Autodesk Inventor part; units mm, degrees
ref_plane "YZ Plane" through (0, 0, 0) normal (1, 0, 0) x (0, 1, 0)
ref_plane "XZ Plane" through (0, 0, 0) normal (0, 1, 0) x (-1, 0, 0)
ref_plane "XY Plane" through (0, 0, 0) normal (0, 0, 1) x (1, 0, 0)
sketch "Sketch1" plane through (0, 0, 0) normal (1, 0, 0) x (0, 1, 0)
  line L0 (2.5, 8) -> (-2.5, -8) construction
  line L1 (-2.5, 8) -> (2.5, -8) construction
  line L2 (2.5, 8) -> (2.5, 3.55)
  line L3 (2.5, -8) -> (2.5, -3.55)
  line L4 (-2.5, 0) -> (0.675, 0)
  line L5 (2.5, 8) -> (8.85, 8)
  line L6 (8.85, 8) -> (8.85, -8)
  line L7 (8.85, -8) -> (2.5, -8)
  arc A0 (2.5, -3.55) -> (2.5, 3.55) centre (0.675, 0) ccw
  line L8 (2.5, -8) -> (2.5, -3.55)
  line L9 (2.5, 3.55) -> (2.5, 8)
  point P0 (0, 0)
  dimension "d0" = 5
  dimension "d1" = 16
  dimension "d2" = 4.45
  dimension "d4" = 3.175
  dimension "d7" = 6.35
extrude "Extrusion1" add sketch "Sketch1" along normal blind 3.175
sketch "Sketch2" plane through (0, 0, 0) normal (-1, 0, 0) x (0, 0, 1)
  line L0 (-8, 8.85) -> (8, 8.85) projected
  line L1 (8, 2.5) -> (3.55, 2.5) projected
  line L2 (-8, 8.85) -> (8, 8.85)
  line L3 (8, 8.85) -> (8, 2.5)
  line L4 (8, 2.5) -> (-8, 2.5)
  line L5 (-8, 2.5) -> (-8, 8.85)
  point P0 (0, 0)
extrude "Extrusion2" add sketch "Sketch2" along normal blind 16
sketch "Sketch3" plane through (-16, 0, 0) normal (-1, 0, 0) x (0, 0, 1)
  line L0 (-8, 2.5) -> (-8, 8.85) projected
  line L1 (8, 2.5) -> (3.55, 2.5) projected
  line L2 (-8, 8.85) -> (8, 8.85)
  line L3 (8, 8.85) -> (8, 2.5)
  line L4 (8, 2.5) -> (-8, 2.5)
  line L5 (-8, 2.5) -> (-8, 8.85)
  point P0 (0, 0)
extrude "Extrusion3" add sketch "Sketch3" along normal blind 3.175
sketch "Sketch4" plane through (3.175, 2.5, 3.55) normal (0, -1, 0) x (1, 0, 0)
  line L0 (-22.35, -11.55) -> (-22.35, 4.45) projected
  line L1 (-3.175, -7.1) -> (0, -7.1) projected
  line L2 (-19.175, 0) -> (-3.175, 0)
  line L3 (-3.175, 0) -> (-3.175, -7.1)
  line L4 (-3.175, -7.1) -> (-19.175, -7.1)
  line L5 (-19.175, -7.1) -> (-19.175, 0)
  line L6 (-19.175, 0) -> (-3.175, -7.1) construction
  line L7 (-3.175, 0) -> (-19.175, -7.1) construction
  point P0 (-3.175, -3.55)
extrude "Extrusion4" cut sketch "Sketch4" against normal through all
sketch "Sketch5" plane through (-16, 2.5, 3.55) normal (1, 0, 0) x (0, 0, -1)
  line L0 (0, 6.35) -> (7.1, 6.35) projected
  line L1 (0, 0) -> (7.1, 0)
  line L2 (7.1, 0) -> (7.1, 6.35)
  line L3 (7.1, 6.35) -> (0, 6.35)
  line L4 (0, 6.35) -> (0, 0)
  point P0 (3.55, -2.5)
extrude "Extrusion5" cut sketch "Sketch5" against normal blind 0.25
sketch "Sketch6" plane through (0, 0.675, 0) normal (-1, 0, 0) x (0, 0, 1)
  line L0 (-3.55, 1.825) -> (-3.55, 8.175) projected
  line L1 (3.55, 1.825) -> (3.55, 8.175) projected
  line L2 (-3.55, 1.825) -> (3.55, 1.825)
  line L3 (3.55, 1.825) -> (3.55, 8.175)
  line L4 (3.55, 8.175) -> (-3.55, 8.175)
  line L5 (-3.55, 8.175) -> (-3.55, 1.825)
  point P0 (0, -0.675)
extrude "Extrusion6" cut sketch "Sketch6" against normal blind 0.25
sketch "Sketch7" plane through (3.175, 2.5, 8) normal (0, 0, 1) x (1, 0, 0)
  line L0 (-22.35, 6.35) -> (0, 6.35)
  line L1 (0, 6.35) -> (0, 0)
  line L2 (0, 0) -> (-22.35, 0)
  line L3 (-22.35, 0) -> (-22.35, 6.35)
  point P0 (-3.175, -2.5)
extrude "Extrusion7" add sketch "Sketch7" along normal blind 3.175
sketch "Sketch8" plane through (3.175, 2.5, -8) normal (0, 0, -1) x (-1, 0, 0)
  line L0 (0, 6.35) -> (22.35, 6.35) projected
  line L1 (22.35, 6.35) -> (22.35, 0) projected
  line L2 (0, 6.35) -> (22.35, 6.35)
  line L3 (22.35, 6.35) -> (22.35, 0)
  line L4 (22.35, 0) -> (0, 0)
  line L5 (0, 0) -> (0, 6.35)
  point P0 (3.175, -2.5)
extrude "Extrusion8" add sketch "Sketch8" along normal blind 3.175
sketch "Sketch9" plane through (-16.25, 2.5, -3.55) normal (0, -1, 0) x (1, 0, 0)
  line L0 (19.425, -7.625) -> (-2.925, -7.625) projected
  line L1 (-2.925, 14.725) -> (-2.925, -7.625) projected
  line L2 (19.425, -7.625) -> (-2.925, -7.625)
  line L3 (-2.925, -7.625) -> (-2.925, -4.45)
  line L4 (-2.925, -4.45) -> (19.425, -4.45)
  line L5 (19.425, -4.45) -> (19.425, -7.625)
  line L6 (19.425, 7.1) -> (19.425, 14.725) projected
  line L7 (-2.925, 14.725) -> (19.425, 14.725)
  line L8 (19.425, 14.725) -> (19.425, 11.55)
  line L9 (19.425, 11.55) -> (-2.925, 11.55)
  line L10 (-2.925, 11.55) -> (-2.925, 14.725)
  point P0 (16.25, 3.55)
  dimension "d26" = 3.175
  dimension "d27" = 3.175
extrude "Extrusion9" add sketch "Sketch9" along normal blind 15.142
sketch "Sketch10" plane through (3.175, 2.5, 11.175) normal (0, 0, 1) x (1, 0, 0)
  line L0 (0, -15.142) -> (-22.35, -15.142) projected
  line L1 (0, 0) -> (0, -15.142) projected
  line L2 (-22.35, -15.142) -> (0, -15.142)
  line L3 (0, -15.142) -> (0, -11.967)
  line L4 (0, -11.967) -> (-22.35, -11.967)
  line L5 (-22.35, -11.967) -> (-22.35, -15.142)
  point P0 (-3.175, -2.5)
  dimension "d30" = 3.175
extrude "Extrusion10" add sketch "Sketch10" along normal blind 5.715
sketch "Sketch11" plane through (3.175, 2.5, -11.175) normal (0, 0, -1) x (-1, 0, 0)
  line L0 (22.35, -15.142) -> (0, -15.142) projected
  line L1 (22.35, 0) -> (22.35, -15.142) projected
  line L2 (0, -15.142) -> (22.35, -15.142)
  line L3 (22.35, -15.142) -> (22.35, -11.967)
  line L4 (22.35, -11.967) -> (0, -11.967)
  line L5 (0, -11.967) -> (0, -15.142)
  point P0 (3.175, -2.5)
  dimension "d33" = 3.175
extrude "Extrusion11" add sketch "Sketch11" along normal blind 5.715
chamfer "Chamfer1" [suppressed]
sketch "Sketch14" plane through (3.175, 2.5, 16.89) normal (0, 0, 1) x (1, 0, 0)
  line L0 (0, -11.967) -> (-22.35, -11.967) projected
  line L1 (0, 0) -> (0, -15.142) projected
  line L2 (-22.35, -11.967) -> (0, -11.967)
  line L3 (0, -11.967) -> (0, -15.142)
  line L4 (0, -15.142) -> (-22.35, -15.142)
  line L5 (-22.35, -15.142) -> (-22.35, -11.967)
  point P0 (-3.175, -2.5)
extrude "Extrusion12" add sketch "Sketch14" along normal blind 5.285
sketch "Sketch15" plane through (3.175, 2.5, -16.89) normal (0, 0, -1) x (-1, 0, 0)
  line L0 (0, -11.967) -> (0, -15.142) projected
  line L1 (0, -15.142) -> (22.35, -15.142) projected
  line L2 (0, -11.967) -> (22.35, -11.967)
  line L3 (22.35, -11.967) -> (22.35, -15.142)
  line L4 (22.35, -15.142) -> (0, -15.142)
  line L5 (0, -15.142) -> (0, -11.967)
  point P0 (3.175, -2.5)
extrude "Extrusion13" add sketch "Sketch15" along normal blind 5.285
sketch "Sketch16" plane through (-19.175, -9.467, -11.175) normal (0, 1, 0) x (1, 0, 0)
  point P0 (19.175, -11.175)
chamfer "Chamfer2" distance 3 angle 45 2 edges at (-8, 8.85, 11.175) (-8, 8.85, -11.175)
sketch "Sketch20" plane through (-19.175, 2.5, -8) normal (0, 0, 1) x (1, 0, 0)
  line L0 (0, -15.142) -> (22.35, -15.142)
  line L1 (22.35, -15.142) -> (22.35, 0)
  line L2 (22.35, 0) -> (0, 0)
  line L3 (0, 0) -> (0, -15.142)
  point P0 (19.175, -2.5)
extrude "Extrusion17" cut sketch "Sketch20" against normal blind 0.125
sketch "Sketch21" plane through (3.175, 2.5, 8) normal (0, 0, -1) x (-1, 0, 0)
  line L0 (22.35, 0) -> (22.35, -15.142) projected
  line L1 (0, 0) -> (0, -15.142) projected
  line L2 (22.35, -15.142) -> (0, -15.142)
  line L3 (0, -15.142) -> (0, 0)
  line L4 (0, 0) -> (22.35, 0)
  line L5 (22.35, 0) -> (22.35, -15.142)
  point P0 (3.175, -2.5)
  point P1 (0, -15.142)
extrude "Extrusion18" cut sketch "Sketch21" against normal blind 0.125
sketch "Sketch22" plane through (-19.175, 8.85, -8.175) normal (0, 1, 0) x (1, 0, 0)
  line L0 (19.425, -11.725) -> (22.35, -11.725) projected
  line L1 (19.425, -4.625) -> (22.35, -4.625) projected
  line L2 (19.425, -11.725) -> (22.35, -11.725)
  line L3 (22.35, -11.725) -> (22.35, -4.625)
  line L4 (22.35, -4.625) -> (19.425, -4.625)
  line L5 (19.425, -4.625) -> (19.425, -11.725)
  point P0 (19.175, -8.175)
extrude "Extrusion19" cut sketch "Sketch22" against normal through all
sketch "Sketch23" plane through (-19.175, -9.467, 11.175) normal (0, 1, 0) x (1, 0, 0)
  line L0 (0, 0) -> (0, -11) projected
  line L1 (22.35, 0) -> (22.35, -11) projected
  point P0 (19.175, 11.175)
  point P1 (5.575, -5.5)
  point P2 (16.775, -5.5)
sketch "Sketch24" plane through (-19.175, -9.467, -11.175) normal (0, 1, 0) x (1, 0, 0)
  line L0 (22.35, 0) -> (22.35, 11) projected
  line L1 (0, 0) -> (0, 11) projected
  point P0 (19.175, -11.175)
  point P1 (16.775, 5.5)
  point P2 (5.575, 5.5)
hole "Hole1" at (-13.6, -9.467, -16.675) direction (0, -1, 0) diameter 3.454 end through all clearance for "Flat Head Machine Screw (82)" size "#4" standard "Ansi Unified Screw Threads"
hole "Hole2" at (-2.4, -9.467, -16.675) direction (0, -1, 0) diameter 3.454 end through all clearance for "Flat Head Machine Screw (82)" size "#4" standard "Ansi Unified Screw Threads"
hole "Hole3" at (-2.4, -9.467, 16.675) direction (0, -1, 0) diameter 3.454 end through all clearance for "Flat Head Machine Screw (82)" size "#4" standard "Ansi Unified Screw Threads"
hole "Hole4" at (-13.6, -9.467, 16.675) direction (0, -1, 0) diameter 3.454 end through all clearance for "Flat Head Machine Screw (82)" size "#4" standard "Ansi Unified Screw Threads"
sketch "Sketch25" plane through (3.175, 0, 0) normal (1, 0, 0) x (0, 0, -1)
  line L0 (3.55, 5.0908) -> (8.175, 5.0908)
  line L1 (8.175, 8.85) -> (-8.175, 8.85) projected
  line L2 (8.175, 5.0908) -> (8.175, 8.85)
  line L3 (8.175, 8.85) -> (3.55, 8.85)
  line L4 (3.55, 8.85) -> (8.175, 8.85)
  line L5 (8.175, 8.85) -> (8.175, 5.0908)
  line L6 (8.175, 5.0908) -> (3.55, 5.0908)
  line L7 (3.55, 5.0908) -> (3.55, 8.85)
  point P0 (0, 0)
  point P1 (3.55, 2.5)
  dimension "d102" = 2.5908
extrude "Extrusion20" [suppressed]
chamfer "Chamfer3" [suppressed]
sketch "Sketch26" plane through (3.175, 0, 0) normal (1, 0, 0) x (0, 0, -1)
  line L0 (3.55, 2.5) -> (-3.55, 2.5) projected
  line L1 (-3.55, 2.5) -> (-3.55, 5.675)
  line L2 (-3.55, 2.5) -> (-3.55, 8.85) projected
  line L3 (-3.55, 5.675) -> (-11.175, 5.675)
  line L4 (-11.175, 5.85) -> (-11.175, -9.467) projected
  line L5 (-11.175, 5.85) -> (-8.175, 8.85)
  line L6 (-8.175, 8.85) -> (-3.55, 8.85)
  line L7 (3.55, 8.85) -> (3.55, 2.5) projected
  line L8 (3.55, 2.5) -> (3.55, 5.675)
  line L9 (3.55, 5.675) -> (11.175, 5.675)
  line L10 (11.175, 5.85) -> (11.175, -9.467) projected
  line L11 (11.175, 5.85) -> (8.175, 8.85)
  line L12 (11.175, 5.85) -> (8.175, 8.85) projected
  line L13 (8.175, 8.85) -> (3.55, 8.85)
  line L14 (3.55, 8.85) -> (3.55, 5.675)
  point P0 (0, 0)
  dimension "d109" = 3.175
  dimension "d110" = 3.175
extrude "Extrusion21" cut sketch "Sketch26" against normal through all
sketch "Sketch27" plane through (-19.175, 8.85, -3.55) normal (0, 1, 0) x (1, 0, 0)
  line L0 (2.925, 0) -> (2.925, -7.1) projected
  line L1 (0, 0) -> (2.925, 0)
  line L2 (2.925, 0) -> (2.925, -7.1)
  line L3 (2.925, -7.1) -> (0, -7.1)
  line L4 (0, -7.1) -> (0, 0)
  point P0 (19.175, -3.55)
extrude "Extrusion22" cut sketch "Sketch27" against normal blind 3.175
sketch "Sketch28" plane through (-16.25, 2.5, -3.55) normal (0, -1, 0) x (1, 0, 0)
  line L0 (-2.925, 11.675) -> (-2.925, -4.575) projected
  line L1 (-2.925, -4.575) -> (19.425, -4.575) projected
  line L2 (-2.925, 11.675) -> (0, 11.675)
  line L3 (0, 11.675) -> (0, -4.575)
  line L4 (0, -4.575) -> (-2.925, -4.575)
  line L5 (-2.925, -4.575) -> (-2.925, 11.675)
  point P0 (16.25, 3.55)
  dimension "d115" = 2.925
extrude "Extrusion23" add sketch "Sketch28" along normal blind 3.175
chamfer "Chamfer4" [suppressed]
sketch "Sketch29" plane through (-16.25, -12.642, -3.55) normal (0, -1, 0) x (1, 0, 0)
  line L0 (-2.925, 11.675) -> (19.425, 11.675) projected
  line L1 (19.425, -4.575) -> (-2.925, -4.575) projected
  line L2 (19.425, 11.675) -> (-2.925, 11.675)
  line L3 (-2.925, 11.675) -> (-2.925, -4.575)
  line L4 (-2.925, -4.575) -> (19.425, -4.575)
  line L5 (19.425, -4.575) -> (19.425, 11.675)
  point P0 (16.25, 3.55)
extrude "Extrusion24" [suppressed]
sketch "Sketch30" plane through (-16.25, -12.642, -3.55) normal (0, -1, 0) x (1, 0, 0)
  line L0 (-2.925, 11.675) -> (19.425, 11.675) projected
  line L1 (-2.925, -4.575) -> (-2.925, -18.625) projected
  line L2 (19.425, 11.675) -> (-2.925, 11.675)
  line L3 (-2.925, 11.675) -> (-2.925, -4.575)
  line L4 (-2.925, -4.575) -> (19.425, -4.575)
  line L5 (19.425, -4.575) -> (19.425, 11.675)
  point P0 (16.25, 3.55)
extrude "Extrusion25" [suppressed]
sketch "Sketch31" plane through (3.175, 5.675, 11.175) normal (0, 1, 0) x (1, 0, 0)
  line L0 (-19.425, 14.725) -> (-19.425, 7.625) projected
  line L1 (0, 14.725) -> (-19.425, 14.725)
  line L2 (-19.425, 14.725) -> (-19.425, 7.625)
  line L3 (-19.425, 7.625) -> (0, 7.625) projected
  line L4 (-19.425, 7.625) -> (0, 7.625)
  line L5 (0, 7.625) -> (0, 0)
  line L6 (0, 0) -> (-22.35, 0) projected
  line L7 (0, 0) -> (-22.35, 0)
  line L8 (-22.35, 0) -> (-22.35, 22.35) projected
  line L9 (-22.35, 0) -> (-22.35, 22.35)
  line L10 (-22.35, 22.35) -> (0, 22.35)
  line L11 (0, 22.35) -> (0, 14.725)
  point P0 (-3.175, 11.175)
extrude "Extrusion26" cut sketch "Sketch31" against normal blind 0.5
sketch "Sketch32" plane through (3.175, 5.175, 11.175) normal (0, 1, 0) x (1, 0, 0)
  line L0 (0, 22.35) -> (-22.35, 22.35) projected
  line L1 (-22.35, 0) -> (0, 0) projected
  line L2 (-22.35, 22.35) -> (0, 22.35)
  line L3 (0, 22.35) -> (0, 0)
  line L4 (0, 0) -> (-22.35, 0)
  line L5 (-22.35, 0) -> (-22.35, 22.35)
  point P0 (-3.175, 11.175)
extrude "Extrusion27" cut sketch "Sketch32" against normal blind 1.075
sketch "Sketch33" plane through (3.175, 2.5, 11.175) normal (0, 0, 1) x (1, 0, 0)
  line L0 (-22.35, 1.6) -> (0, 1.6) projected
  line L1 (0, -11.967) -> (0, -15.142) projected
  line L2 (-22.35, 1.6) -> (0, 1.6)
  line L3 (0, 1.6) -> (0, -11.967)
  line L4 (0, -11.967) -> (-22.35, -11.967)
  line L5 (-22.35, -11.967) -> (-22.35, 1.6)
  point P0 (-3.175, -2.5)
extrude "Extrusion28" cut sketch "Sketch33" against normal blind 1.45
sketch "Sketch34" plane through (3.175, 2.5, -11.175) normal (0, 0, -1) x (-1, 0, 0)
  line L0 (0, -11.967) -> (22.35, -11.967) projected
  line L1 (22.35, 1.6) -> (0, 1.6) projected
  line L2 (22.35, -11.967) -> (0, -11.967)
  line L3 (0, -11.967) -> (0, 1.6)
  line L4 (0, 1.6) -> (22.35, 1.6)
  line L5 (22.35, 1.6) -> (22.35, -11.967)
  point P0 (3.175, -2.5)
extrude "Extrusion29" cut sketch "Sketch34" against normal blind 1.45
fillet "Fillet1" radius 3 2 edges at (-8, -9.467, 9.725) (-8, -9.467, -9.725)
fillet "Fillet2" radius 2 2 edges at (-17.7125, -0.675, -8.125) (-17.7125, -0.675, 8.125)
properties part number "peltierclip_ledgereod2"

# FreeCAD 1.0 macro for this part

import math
import FreeCAD as App
import Part
import Sketcher

V = App.Vector


def edges_at(feature, points):
    """Names of the edges that pass closest to the given points."""
    edges = feature.Shape.Edges
    near = lambda p: min(range(len(edges)), key=lambda i: edges[i].distToShape(Part.Vertex(*p))[0])
    return sorted({f"Edge{near(p) + 1}" for p in points})

doc = App.newDocument("Part")
body = doc.addObject("PartDesign::Body", "Body")

# Sketch on YZ plane
sketch1 = body.newObject("Sketcher::SketchObject", "Sketch")
sketch1.AttachmentSupport = (doc.getObject("YZ_Plane"), [""])
sketch1.MapMode = "FlatFace"
sketch1.addGeometry([
    Part.LineSegment(V(8.8, 8, 0), V(2.5, 8, 0)),  # 0
    Part.LineSegment(V(2.5, 8, 0), V(2.5, 3.5, 0)),  # 1
    Part.ArcOfCircle(Part.Circle(V(0.7, 0, 0), V(0, 0, 1), 4), math.radians(-63), math.radians(63)),  # 2
    Part.LineSegment(V(2.5, -3.5, 0), V(2.5, -8, 0)),  # 3
    Part.LineSegment(V(2.5, -8, 0), V(8.8, -8, 0)),  # 4
    Part.LineSegment(V(8.8, -8, 0), V(8.8, 8, 0)),  # 5
], False)
sketch1.addConstraint([
    Sketcher.Constraint("Coincident", 0, 2, 1, 1),
    Sketcher.Constraint("Coincident", 1, 2, 2, 2),
    Sketcher.Constraint("Coincident", 2, 1, 3, 1),
    Sketcher.Constraint("Coincident", 3, 2, 4, 1),
    Sketcher.Constraint("Coincident", 4, 2, 5, 1),
    Sketcher.Constraint("Coincident", 5, 2, 0, 1),
    Sketcher.Constraint("Horizontal", 0),
    Sketcher.Constraint("Vertical", 1),
    Sketcher.Constraint("Vertical", 3),
    Sketcher.Constraint("Horizontal", 4),
    Sketcher.Constraint("Vertical", 5),
    Sketcher.Constraint("Symmetric", 1, 2, 2, 1, -1),
    Sketcher.Constraint("Equal", 1, 3),
    Sketcher.Constraint("DistanceY", 5, 1, 5, 2, 16.0),
    Sketcher.Constraint("DistanceX", 0, 2, 0, 1, 6.35),
    Sketcher.Constraint("DistanceY", 1, 2, 1, 1, 4.45),
    Sketcher.Constraint("DistanceX", -1, 1, 0, 2, 2.5),
    Sketcher.Constraint("Radius", 2, 3.9916),
])
pad1 = body.newObject("PartDesign::Pad", "Pad")
pad1.Profile = sketch1
pad1.Length = 3.175

# Sketch on YZ plane
sketch2 = body.newObject("Sketcher::SketchObject", "Sketch001")
sketch2.AttachmentSupport = (doc.getObject("YZ_Plane"), [""])
sketch2.MapMode = "FlatFace"
sketch2.addGeometry([
    Part.LineSegment(V(9, 8, 0), V(9, -8, 0)),
    Part.LineSegment(V(9, -8, 0), V(2, -8, 0)),
    Part.LineSegment(V(2, -8, 0), V(2, 8, 0)),
    Part.LineSegment(V(2, 8, 0), V(9, 8, 0)),
], False)
sketch2.addConstraint([
    Sketcher.Constraint("Coincident", 0, 2, 1, 1),
    Sketcher.Constraint("Coincident", 1, 2, 2, 1),
    Sketcher.Constraint("Coincident", 2, 2, 3, 1),
    Sketcher.Constraint("Coincident", 3, 2, 0, 1),
    Sketcher.Constraint("Vertical", 0),
    Sketcher.Constraint("Horizontal", 1),
    Sketcher.Constraint("Vertical", 2),
    Sketcher.Constraint("Horizontal", 3),
    Sketcher.Constraint("DistanceY", 0, 2, 0, 1, 16.0),
    Sketcher.Constraint("DistanceY", 0, 2, -1, 1, 8.0),
    Sketcher.Constraint("DistanceX", 1, 2, 1, 1, 6.35),
    Sketcher.Constraint("DistanceX", -1, 1, 1, 2, 2.5),
])
pad2 = body.newObject("PartDesign::Pad", "Pad001")
pad2.Profile = sketch2
pad2.Length = 16
pad2.Reversed = True

# Sketch on YZ plane
sketch3 = body.newObject("Sketcher::SketchObject", "Sketch002")
sketch3.AttachmentSupport = (doc.getObject("YZ_Plane"), [""])
sketch3.MapMode = "FlatFace"
sketch3.AttachmentOffset = App.Placement(V(0, 0, -16), App.Rotation())
sketch3.addGeometry([
    Part.LineSegment(V(9, -8, 0), V(2, -8, 0)),
    Part.LineSegment(V(2, -8, 0), V(2, 8, 0)),
    Part.LineSegment(V(2, 8, 0), V(9, 8, 0)),
    Part.LineSegment(V(9, 8, 0), V(9, -8, 0)),
], False)
sketch3.addConstraint([
    Sketcher.Constraint("Coincident", 0, 2, 1, 1),
    Sketcher.Constraint("Coincident", 1, 2, 2, 1),
    Sketcher.Constraint("Coincident", 2, 2, 3, 1),
    Sketcher.Constraint("Coincident", 3, 2, 0, 1),
    Sketcher.Constraint("Horizontal", 0),
    Sketcher.Constraint("Vertical", 1),
    Sketcher.Constraint("Horizontal", 2),
    Sketcher.Constraint("Vertical", 3),
    Sketcher.Constraint("DistanceY", 1, 1, 1, 2, 16.0),
    Sketcher.Constraint("DistanceY", 0, 2, -1, 1, 8.0),
    Sketcher.Constraint("DistanceX", 0, 2, 0, 1, 6.35),
    Sketcher.Constraint("DistanceX", -1, 1, 0, 2, 2.5),
])
pad3 = body.newObject("PartDesign::Pad", "Pad002")
pad3.Profile = sketch3
pad3.Length = 3.175
pad3.Reversed = True

# Sketch on XZ plane
sketch4 = body.newObject("Sketcher::SketchObject", "Sketch003")
sketch4.AttachmentSupport = (doc.getObject("XZ_Plane"), [""])
sketch4.MapMode = "FlatFace"
sketch4.AttachmentOffset = App.Placement(V(0, 0, -2.5), App.Rotation())
sketch4.addGeometry([
    Part.LineSegment(V(0, 4, 0), V(-16, 4, 0)),
    Part.LineSegment(V(-16, 4, 0), V(-16, -4, 0)),
    Part.LineSegment(V(-16, -4, 0), V(0, -4, 0)),
    Part.LineSegment(V(0, -4, 0), V(0, 4, 0)),
], False)
sketch4.addConstraint([
    Sketcher.Constraint("Coincident", 0, 2, 1, 1),
    Sketcher.Constraint("Coincident", 1, 2, 2, 1),
    Sketcher.Constraint("Coincident", 2, 2, 3, 1),
    Sketcher.Constraint("Coincident", 3, 2, 0, 1),
    Sketcher.Constraint("Horizontal", 0),
    Sketcher.Constraint("Vertical", 1),
    Sketcher.Constraint("Horizontal", 2),
    Sketcher.Constraint("Vertical", 3),
    Sketcher.Constraint("Symmetric", 2, 2, 3, 2, -1, 1),
    Sketcher.Constraint("DistanceX", 0, 2, 0, 1, 16.0),
    Sketcher.Constraint("DistanceY", 1, 2, 1, 1, 7.1),
])
pocket1 = body.newObject("PartDesign::Pocket", "Pocket")
pocket1.Profile = sketch4
pocket1.Type = "ThroughAll"

# Sketch on YZ plane
sketch5 = body.newObject("Sketcher::SketchObject", "Sketch004")
sketch5.AttachmentSupport = (doc.getObject("YZ_Plane"), [""])
sketch5.MapMode = "FlatFace"
sketch5.AttachmentOffset = App.Placement(V(0, 0, -16), App.Rotation())
sketch5.addGeometry([
    Part.LineSegment(V(9, -4, 0), V(9, 4, 0)),
    Part.LineSegment(V(9, 4, 0), V(2, 4, 0)),
    Part.LineSegment(V(2, 4, 0), V(2, -4, 0)),
    Part.LineSegment(V(2, -4, 0), V(9, -4, 0)),
], False)
sketch5.addConstraint([
    Sketcher.Constraint("Coincident", 0, 2, 1, 1),
    Sketcher.Constraint("Coincident", 1, 2, 2, 1),
    Sketcher.Constraint("Coincident", 2, 2, 3, 1),
    Sketcher.Constraint("Coincident", 3, 2, 0, 1),
    Sketcher.Constraint("Vertical", 0),
    Sketcher.Constraint("Horizontal", 1),
    Sketcher.Constraint("Vertical", 2),
    Sketcher.Constraint("Horizontal", 3),
    Sketcher.Constraint("DistanceY", 0, 1, 0, 2, 7.1),
    Sketcher.Constraint("DistanceX", 1, 2, 1, 1, 6.35),
    Sketcher.Constraint("DistanceX", -1, 1, 1, 2, 2.5),
    Sketcher.Constraint("DistanceY", -1, 1, 0, 2, 3.55),
])
pocket2 = body.newObject("PartDesign::Pocket", "Pocket001")
pocket2.Profile = sketch5
pocket2.Length = 0.25

# Sketch on YZ plane
sketch6 = body.newObject("Sketcher::SketchObject", "Sketch005")
sketch6.AttachmentSupport = (doc.getObject("YZ_Plane"), [""])
sketch6.MapMode = "FlatFace"
sketch6.addGeometry([
    Part.LineSegment(V(9, -4, 0), V(2, -4, 0)),
    Part.LineSegment(V(2, -4, 0), V(2, 4, 0)),
    Part.LineSegment(V(2, 4, 0), V(9, 4, 0)),
    Part.LineSegment(V(9, 4, 0), V(9, -4, 0)),
], False)
sketch6.addConstraint([
    Sketcher.Constraint("Coincident", 0, 2, 1, 1),
    Sketcher.Constraint("Coincident", 1, 2, 2, 1),
    Sketcher.Constraint("Coincident", 2, 2, 3, 1),
    Sketcher.Constraint("Coincident", 3, 2, 0, 1),
    Sketcher.Constraint("Horizontal", 0),
    Sketcher.Constraint("Vertical", 1),
    Sketcher.Constraint("Horizontal", 2),
    Sketcher.Constraint("Vertical", 3),
    Sketcher.Constraint("DistanceY", 1, 1, 1, 2, 7.1),
    Sketcher.Constraint("DistanceX", 0, 2, 0, 1, 6.35),
    Sketcher.Constraint("DistanceX", -1, 1, 0, 2, 2.5),
    Sketcher.Constraint("DistanceY", 0, 2, -1, 1, 3.55),
])
pocket3 = body.newObject("PartDesign::Pocket", "Pocket002")
pocket3.Profile = sketch6
pocket3.Length = 0.25
pocket3.Reversed = True

# Sketch on XY plane
sketch7 = body.newObject("Sketcher::SketchObject", "Sketch006")
sketch7.AttachmentSupport = (doc.getObject("XY_Plane"), [""])
sketch7.MapMode = "FlatFace"
sketch7.AttachmentOffset = App.Placement(V(0, 0, 8), App.Rotation())
sketch7.addGeometry([
    Part.LineSegment(V(3, 9, 0), V(-19, 9, 0)),
    Part.LineSegment(V(-19, 9, 0), V(-19, 2, 0)),
    Part.LineSegment(V(-19, 2, 0), V(3, 2, 0)),
    Part.LineSegment(V(3, 2, 0), V(3, 9, 0)),
], False)
sketch7.addConstraint([
    Sketcher.Constraint("Coincident", 0, 2, 1, 1),
    Sketcher.Constraint("Coincident", 1, 2, 2, 1),
    Sketcher.Constraint("Coincident", 2, 2, 3, 1),
    Sketcher.Constraint("Coincident", 3, 2, 0, 1),
    Sketcher.Constraint("Horizontal", 0),
    Sketcher.Constraint("Vertical", 1),
    Sketcher.Constraint("Horizontal", 2),
    Sketcher.Constraint("Vertical", 3),
    Sketcher.Constraint("DistanceX", 0, 2, 0, 1, 22.35),
    Sketcher.Constraint("DistanceY", 1, 2, 1, 1, 6.35),
    Sketcher.Constraint("DistanceY", -1, 1, 1, 2, 2.5),
    Sketcher.Constraint("DistanceX", 0, 2, -1, 1, 19.175),
])
pad4 = body.newObject("PartDesign::Pad", "Pad003")
pad4.Profile = sketch7
pad4.Length = 3.175

# Sketch on XY plane
sketch8 = body.newObject("Sketcher::SketchObject", "Sketch007")
sketch8.AttachmentSupport = (doc.getObject("XY_Plane"), [""])
sketch8.MapMode = "FlatFace"
sketch8.AttachmentOffset = App.Placement(V(0, 0, -8), App.Rotation())
sketch8.addGeometry([
    Part.LineSegment(V(-19, 9, 0), V(3, 9, 0)),
    Part.LineSegment(V(3, 9, 0), V(3, 2, 0)),
    Part.LineSegment(V(3, 2, 0), V(-19, 2, 0)),
    Part.LineSegment(V(-19, 2, 0), V(-19, 9, 0)),
], False)
sketch8.addConstraint([
    Sketcher.Constraint("Coincident", 0, 2, 1, 1),
    Sketcher.Constraint("Coincident", 1, 2, 2, 1),
    Sketcher.Constraint("Coincident", 2, 2, 3, 1),
    Sketcher.Constraint("Coincident", 3, 2, 0, 1),
    Sketcher.Constraint("Horizontal", 0),
    Sketcher.Constraint("Vertical", 1),
    Sketcher.Constraint("Horizontal", 2),
    Sketcher.Constraint("Vertical", 3),
    Sketcher.Constraint("DistanceX", 0, 1, 0, 2, 22.35),
    Sketcher.Constraint("DistanceY", 1, 2, 1, 1, 6.35),
    Sketcher.Constraint("DistanceY", -1, 1, 1, 2, 2.5),
    Sketcher.Constraint("DistanceX", -1, 1, 0, 2, 3.175),
])
pad5 = body.newObject("PartDesign::Pad", "Pad004")
pad5.Profile = sketch8
pad5.Length = 3.175
pad5.Reversed = True

# Sketch on XZ plane
sketch9 = body.newObject("Sketcher::SketchObject", "Sketch008")
sketch9.AttachmentSupport = (doc.getObject("XZ_Plane"), [""])
sketch9.MapMode = "FlatFace"
sketch9.AttachmentOffset = App.Placement(V(0, 0, -2.5), App.Rotation())
sketch9.addGeometry([
    Part.LineSegment(V(-19.2, 11.2, 0), V(-19.2, 8, 0)),  # 0
    Part.LineSegment(V(-19.2, 8, 0), V(3.2, 8, 0)),  # 1
    Part.LineSegment(V(3.2, 8, 0), V(3.2, 11.2, 0)),  # 2
    Part.LineSegment(V(3.2, 11.2, 0), V(-19.2, 11.2, 0)),  # 3
    Part.LineSegment(V(-19.2, -11.2, 0), V(3.2, -11.2, 0)),  # 4
    Part.LineSegment(V(3.2, -11.2, 0), V(3.2, -8, 0)),  # 5
    Part.LineSegment(V(3.2, -8, 0), V(-19.2, -8, 0)),  # 6
    Part.LineSegment(V(-19.2, -8, 0), V(-19.2, -11.2, 0)),  # 7
], False)
sketch9.addConstraint([
    Sketcher.Constraint("Coincident", 0, 2, 1, 1),
    Sketcher.Constraint("Coincident", 1, 2, 2, 1),
    Sketcher.Constraint("Coincident", 2, 2, 3, 1),
    Sketcher.Constraint("Coincident", 3, 2, 0, 1),
    Sketcher.Constraint("Coincident", 4, 2, 5, 1),
    Sketcher.Constraint("Coincident", 5, 2, 6, 1),
    Sketcher.Constraint("Coincident", 6, 2, 7, 1),
    Sketcher.Constraint("Coincident", 7, 2, 4, 1),
    Sketcher.Constraint("Vertical", 0),
    Sketcher.Constraint("Horizontal", 1),
    Sketcher.Constraint("Vertical", 2),
    Sketcher.Constraint("Horizontal", 3),
    Sketcher.Constraint("Horizontal", 4),
    Sketcher.Constraint("Vertical", 5),
    Sketcher.Constraint("Horizontal", 6),
    Sketcher.Constraint("Vertical", 7),
    Sketcher.Constraint("Symmetric", 2, 2, 4, 2, -1),
    Sketcher.Constraint("Symmetric", 0, 2, 6, 2, -1),
    Sketcher.Constraint("DistanceY", 0, 2, 0, 1, 3.175),
    Sketcher.Constraint("DistanceX", -1, 1, 1, 2, 3.175),
    Sketcher.Constraint("DistanceY", -1, 1, 0, 2, 8.0),
    Sketcher.Constraint("DistanceX", 1, 1, 1, 2, 22.35),
])
pad6 = body.newObject("PartDesign::Pad", "Pad005")
pad6.Profile = sketch9
pad6.Length = 15.142

# Sketch on XY plane
sketch10 = body.newObject("Sketcher::SketchObject", "Sketch009")
sketch10.AttachmentSupport = (doc.getObject("XY_Plane"), [""])
sketch10.MapMode = "FlatFace"
sketch10.AttachmentOffset = App.Placement(V(0, 0, 11.175), App.Rotation())
sketch10.addGeometry([
    Part.LineSegment(V(-19.2, -12.6, 0), V(3.2, -12.6, 0)),
    Part.LineSegment(V(3.2, -12.6, 0), V(3.2, -9.5, 0)),
    Part.LineSegment(V(3.2, -9.5, 0), V(-19.2, -9.5, 0)),
    Part.LineSegment(V(-19.2, -9.5, 0), V(-19.2, -12.6, 0)),
], False)
sketch10.addConstraint([
    Sketcher.Constraint("Coincident", 0, 2, 1, 1),
    Sketcher.Constraint("Coincident", 1, 2, 2, 1),
    Sketcher.Constraint("Coincident", 2, 2, 3, 1),
    Sketcher.Constraint("Coincident", 3, 2, 0, 1),
    Sketcher.Constraint("Horizontal", 0),
    Sketcher.Constraint("Vertical", 1),
    Sketcher.Constraint("Horizontal", 2),
    Sketcher.Constraint("Vertical", 3),
    Sketcher.Constraint("DistanceY", 1, 1, 1, 2, 3.175),
    Sketcher.Constraint("DistanceX", -1, 1, 0, 2, 3.175),
    Sketcher.Constraint("DistanceX", 0, 1, 0, 2, 22.35),
    Sketcher.Constraint("DistanceY", 0, 2, -1, 1, 12.642),
])
pad7 = body.newObject("PartDesign::Pad", "Pad006")
pad7.Profile = sketch10
pad7.Length = 5.715

# Sketch on XY plane
sketch11 = body.newObject("Sketcher::SketchObject", "Sketch010")
sketch11.AttachmentSupport = (doc.getObject("XY_Plane"), [""])
sketch11.MapMode = "FlatFace"
sketch11.AttachmentOffset = App.Placement(V(0, 0, -11.175), App.Rotation())
sketch11.addGeometry([
    Part.LineSegment(V(3.2, -12.6, 0), V(-19.2, -12.6, 0)),
    Part.LineSegment(V(-19.2, -12.6, 0), V(-19.2, -9.5, 0)),
    Part.LineSegment(V(-19.2, -9.5, 0), V(3.2, -9.5, 0)),
    Part.LineSegment(V(3.2, -9.5, 0), V(3.2, -12.6, 0)),
], False)
sketch11.addConstraint([
    Sketcher.Constraint("Coincident", 0, 2, 1, 1),
    Sketcher.Constraint("Coincident", 1, 2, 2, 1),
    Sketcher.Constraint("Coincident", 2, 2, 3, 1),
    Sketcher.Constraint("Coincident", 3, 2, 0, 1),
    Sketcher.Constraint("Horizontal", 0),
    Sketcher.Constraint("Vertical", 1),
    Sketcher.Constraint("Horizontal", 2),
    Sketcher.Constraint("Vertical", 3),
    Sketcher.Constraint("DistanceY", 1, 1, 1, 2, 3.175),
    Sketcher.Constraint("DistanceX", -1, 1, 2, 2, 3.175),
    Sketcher.Constraint("DistanceX", 0, 2, 0, 1, 22.35),
    Sketcher.Constraint("DistanceY", 0, 2, -1, 1, 12.642),
])
pad8 = body.newObject("PartDesign::Pad", "Pad007")
pad8.Profile = sketch11
pad8.Length = 5.715
pad8.Reversed = True

# Sketch on XY plane
sketch12 = body.newObject("Sketcher::SketchObject", "Sketch011")
sketch12.AttachmentSupport = (doc.getObject("XY_Plane"), [""])
sketch12.MapMode = "FlatFace"
sketch12.AttachmentOffset = App.Placement(V(0, 0, 16.89), App.Rotation())
sketch12.addGeometry([
    Part.LineSegment(V(3.2, -12.6, 0), V(3.2, -9.5, 0)),
    Part.LineSegment(V(3.2, -9.5, 0), V(-19.2, -9.5, 0)),
    Part.LineSegment(V(-19.2, -9.5, 0), V(-19.2, -12.6, 0)),
    Part.LineSegment(V(-19.2, -12.6, 0), V(3.2, -12.6, 0)),
], False)
sketch12.addConstraint([
    Sketcher.Constraint("Coincident", 0, 2, 1, 1),
    Sketcher.Constraint("Coincident", 1, 2, 2, 1),
    Sketcher.Constraint("Coincident", 2, 2, 3, 1),
    Sketcher.Constraint("Coincident", 3, 2, 0, 1),
    Sketcher.Constraint("Vertical", 0),
    Sketcher.Constraint("Horizontal", 1),
    Sketcher.Constraint("Vertical", 2),
    Sketcher.Constraint("Horizontal", 3),
    Sketcher.Constraint("DistanceX", 1, 2, 1, 1, 22.35),
    Sketcher.Constraint("DistanceY", 0, 1, 0, 2, 3.175),
    Sketcher.Constraint("DistanceX", -1, 1, 0, 2, 3.175),
    Sketcher.Constraint("DistanceY", 0, 2, -1, 1, 9.467),
])
pad9 = body.newObject("PartDesign::Pad", "Pad008")
pad9.Profile = sketch12
pad9.Length = 5.285

# Sketch on XY plane
sketch13 = body.newObject("Sketcher::SketchObject", "Sketch012")
sketch13.AttachmentSupport = (doc.getObject("XY_Plane"), [""])
sketch13.MapMode = "FlatFace"
sketch13.AttachmentOffset = App.Placement(V(0, 0, -16.89), App.Rotation())
sketch13.addGeometry([
    Part.LineSegment(V(-19.2, -9.5, 0), V(3.2, -9.5, 0)),
    Part.LineSegment(V(3.2, -9.5, 0), V(3.2, -12.6, 0)),
    Part.LineSegment(V(3.2, -12.6, 0), V(-19.2, -12.6, 0)),
    Part.LineSegment(V(-19.2, -12.6, 0), V(-19.2, -9.5, 0)),
], False)
sketch13.addConstraint([
    Sketcher.Constraint("Coincident", 0, 2, 1, 1),
    Sketcher.Constraint("Coincident", 1, 2, 2, 1),
    Sketcher.Constraint("Coincident", 2, 2, 3, 1),
    Sketcher.Constraint("Coincident", 3, 2, 0, 1),
    Sketcher.Constraint("Horizontal", 0),
    Sketcher.Constraint("Vertical", 1),
    Sketcher.Constraint("Horizontal", 2),
    Sketcher.Constraint("Vertical", 3),
    Sketcher.Constraint("DistanceX", 0, 1, 0, 2, 22.35),
    Sketcher.Constraint("DistanceY", 1, 2, 1, 1, 3.175),
    Sketcher.Constraint("DistanceX", -1, 1, 0, 2, 3.175),
    Sketcher.Constraint("DistanceY", 0, 2, -1, 1, 9.467),
])
pad10 = body.newObject("PartDesign::Pad", "Pad009")
pad10.Profile = sketch13
pad10.Length = 5.285
pad10.Reversed = True
doc.recompute()

chamfer = body.newObject("PartDesign::Chamfer", "Chamfer")
chamfer.Base = (pad10, edges_at(pad10, [(-8, 8.85, 11.175), (-8, 8.85, -11.175)]))
chamfer.Size = 3

# Sketch on XY plane
sketch14 = body.newObject("Sketcher::SketchObject", "Sketch013")
sketch14.AttachmentSupport = (doc.getObject("XY_Plane"), [""])
sketch14.MapMode = "FlatFace"
sketch14.AttachmentOffset = App.Placement(V(0, 0, -8), App.Rotation())
sketch14.addGeometry([
    Part.LineSegment(V(-19, 2, 0), V(-19, -13, 0)),
    Part.LineSegment(V(-19, -13, 0), V(3, -13, 0)),
    Part.LineSegment(V(3, -13, 0), V(3, 2, 0)),
    Part.LineSegment(V(3, 2, 0), V(-19, 2, 0)),
], False)
sketch14.addConstraint([
    Sketcher.Constraint("Coincident", 0, 2, 1, 1),
    Sketcher.Constraint("Coincident", 1, 2, 2, 1),
    Sketcher.Constraint("Coincident", 2, 2, 3, 1),
    Sketcher.Constraint("Coincident", 3, 2, 0, 1),
    Sketcher.Constraint("Vertical", 0),
    Sketcher.Constraint("Horizontal", 1),
    Sketcher.Constraint("Vertical", 2),
    Sketcher.Constraint("Horizontal", 3),
    Sketcher.Constraint("DistanceX", 1, 1, 1, 2, 22.35),
    Sketcher.Constraint("DistanceY", -1, 1, 2, 2, 2.5),
    Sketcher.Constraint("DistanceY", 0, 2, 0, 1, 15.142),
    Sketcher.Constraint("DistanceX", 0, 2, -1, 1, 19.175),
])
pocket4 = body.newObject("PartDesign::Pocket", "Pocket003")
pocket4.Profile = sketch14
pocket4.Length = 0.125

# Sketch on XY plane
sketch15 = body.newObject("Sketcher::SketchObject", "Sketch014")
sketch15.AttachmentSupport = (doc.getObject("XY_Plane"), [""])
sketch15.MapMode = "FlatFace"
sketch15.AttachmentOffset = App.Placement(V(0, 0, 8), App.Rotation())
sketch15.addGeometry([
    Part.LineSegment(V(-19, -13, 0), V(-19, 2, 0)),
    Part.LineSegment(V(-19, 2, 0), V(3, 2, 0)),
    Part.LineSegment(V(3, 2, 0), V(3, -13, 0)),
    Part.LineSegment(V(3, -13, 0), V(-19, -13, 0)),
], False)
sketch15.addConstraint([
    Sketcher.Constraint("Coincident", 0, 2, 1, 1),
    Sketcher.Constraint("Coincident", 1, 2, 2, 1),
    Sketcher.Constraint("Coincident", 2, 2, 3, 1),
    Sketcher.Constraint("Coincident", 3, 2, 0, 1),
    Sketcher.Constraint("Vertical", 0),
    Sketcher.Constraint("Horizontal", 1),
    Sketcher.Constraint("Vertical", 2),
    Sketcher.Constraint("Horizontal", 3),
    Sketcher.Constraint("DistanceX", 1, 1, 1, 2, 22.35),
    Sketcher.Constraint("DistanceY", -1, 1, 0, 2, 2.5),
    Sketcher.Constraint("DistanceY", 0, 1, 0, 2, 15.142),
    Sketcher.Constraint("DistanceX", 0, 2, -1, 1, 19.175),
])
pocket5 = body.newObject("PartDesign::Pocket", "Pocket004")
pocket5.Profile = sketch15
pocket5.Length = 0.125
pocket5.Reversed = True

# Sketch on XZ plane
sketch16 = body.newObject("Sketcher::SketchObject", "Sketch015")
sketch16.AttachmentSupport = (doc.getObject("XZ_Plane"), [""])
sketch16.MapMode = "FlatFace"
sketch16.AttachmentOffset = App.Placement(V(0, 0, -8.85), App.Rotation())
sketch16.addGeometry([
    Part.LineSegment(V(0.2, -3.5, 0), V(0.2, 3.5, 0)),
    Part.LineSegment(V(0.2, 3.5, 0), V(3.2, 3.5, 0)),
    Part.LineSegment(V(3.2, 3.5, 0), V(3.2, -3.5, 0)),
    Part.LineSegment(V(3.2, -3.5, 0), V(0.2, -3.5, 0)),
], False)
sketch16.addConstraint([
    Sketcher.Constraint("Coincident", 0, 2, 1, 1),
    Sketcher.Constraint("Coincident", 1, 2, 2, 1),
    Sketcher.Constraint("Coincident", 2, 2, 3, 1),
    Sketcher.Constraint("Coincident", 3, 2, 0, 1),
    Sketcher.Constraint("Vertical", 0),
    Sketcher.Constraint("Horizontal", 1),
    Sketcher.Constraint("Vertical", 2),
    Sketcher.Constraint("Horizontal", 3),
    Sketcher.Constraint("DistanceY", 0, 1, 0, 2, 7.1),
    Sketcher.Constraint("DistanceX", 1, 1, 1, 2, 2.925),
    Sketcher.Constraint("DistanceX", -1, 1, 0, 2, 0.25),
    Sketcher.Constraint("DistanceY", -1, 1, 0, 2, 3.55),
])
pocket6 = body.newObject("PartDesign::Pocket", "Pocket005")
pocket6.Profile = sketch16
pocket6.Type = "ThroughAll"
pocket6.Reversed = True

# Sketch on XZ plane
sketch17 = body.newObject("Sketcher::SketchObject", "Sketch016")
sketch17.AttachmentSupport = (doc.getObject("XZ_Plane"), [""])
sketch17.MapMode = "FlatFace"
sketch17.AttachmentOffset = App.Placement(V(0, 0, 9.467), App.Rotation())
sketch17.addGeometry(Part.Circle(V(-13.6, -16.7, 0), V(0, 0, 1), 1.7), False)
sketch17.addConstraint([
    Sketcher.Constraint("Diameter", 0, 3.454),
    Sketcher.Constraint("DistanceX", 0, 3, -1, 1, 13.6),
    Sketcher.Constraint("DistanceY", 0, 3, -1, 1, 16.675),
])
doc.recompute()
hole = body.newObject("PartDesign::Hole", "Hole")
hole.Profile = sketch17
hole.ThreadType = "None"
hole.Diameter = 3.454
hole.DepthType = "ThroughAll"
hole.Reversed = True

# Sketch on XZ plane
sketch18 = body.newObject("Sketcher::SketchObject", "Sketch017")
sketch18.AttachmentSupport = (doc.getObject("XZ_Plane"), [""])
sketch18.MapMode = "FlatFace"
sketch18.AttachmentOffset = App.Placement(V(0, 0, 9.467), App.Rotation())
sketch18.addGeometry(Part.Circle(V(-2.4, -16.7, 0), V(0, 0, 1), 1.7), False)
sketch18.addConstraint([
    Sketcher.Constraint("Diameter", 0, 3.454),
    Sketcher.Constraint("DistanceX", 0, 3, -1, 1, 2.4),
    Sketcher.Constraint("DistanceY", 0, 3, -1, 1, 16.675),
])
doc.recompute()
hole2 = body.newObject("PartDesign::Hole", "Hole001")
hole2.Profile = sketch18
hole2.ThreadType = "None"
hole2.Diameter = 3.454
hole2.DepthType = "ThroughAll"
hole2.Reversed = True

# Sketch on XZ plane
sketch19 = body.newObject("Sketcher::SketchObject", "Sketch018")
sketch19.AttachmentSupport = (doc.getObject("XZ_Plane"), [""])
sketch19.MapMode = "FlatFace"
sketch19.AttachmentOffset = App.Placement(V(0, 0, 9.467), App.Rotation())
sketch19.addGeometry(Part.Circle(V(-2.4, 16.7, 0), V(0, 0, 1), 1.7), False)
sketch19.addConstraint([
    Sketcher.Constraint("Diameter", 0, 3.454),
    Sketcher.Constraint("DistanceX", 0, 3, -1, 1, 2.4),
    Sketcher.Constraint("DistanceY", -1, 1, 0, 3, 16.675),
])
doc.recompute()
hole3 = body.newObject("PartDesign::Hole", "Hole002")
hole3.Profile = sketch19
hole3.ThreadType = "None"
hole3.Diameter = 3.454
hole3.DepthType = "ThroughAll"
hole3.Reversed = True

# Sketch on XZ plane
sketch20 = body.newObject("Sketcher::SketchObject", "Sketch019")
sketch20.AttachmentSupport = (doc.getObject("XZ_Plane"), [""])
sketch20.MapMode = "FlatFace"
sketch20.AttachmentOffset = App.Placement(V(0, 0, 9.467), App.Rotation())
sketch20.addGeometry(Part.Circle(V(-13.6, 16.7, 0), V(0, 0, 1), 1.7), False)
sketch20.addConstraint([
    Sketcher.Constraint("Diameter", 0, 3.454),
    Sketcher.Constraint("DistanceX", 0, 3, -1, 1, 13.6),
    Sketcher.Constraint("DistanceY", -1, 1, 0, 3, 16.675),
])
doc.recompute()
hole4 = body.newObject("PartDesign::Hole", "Hole003")
hole4.Profile = sketch20
hole4.ThreadType = "None"
hole4.Diameter = 3.454
hole4.DepthType = "ThroughAll"
hole4.Reversed = True

# Sketch on YZ plane
sketch21 = body.newObject("Sketcher::SketchObject", "Sketch020")
sketch21.AttachmentSupport = (doc.getObject("YZ_Plane"), [""])
sketch21.MapMode = "FlatFace"
sketch21.AttachmentOffset = App.Placement(V(0, 0, 3.175), App.Rotation())
sketch21.addGeometry([
    Part.LineSegment(V(5.67, 11.18, 0), V(5.67, 3.55, 0)),  # 0
    Part.LineSegment(V(5.67, 3.55, 0), V(8.85, 3.55, 0)),  # 1
    Part.LineSegment(V(8.85, 3.55, 0), V(8.85, 8.18, 0)),  # 2
    Part.LineSegment(V(8.85, 8.18, 0), V(5.85, 11.18, 0)),  # 3
    Part.LineSegment(V(5.85, 11.18, 0), V(5.67, 11.18, 0)),  # 4
    Part.LineSegment(V(8.85, -3.55, 0), V(5.67, -3.55, 0)),  # 5
    Part.LineSegment(V(5.67, -3.55, 0), V(5.67, -11.18, 0)),  # 6
    Part.LineSegment(V(5.67, -11.18, 0), V(5.85, -11.18, 0)),  # 7
    Part.LineSegment(V(5.85, -11.18, 0), V(8.85, -8.18, 0)),  # 8
    Part.LineSegment(V(8.85, -8.18, 0), V(8.85, -3.55, 0)),  # 9
], False)
sketch21.addConstraint([
    Sketcher.Constraint("Coincident", 0, 2, 1, 1),
    Sketcher.Constraint("Coincident", 1, 2, 2, 1),
    Sketcher.Constraint("Coincident", 2, 2, 3, 1),
    Sketcher.Constraint("Coincident", 3, 2, 4, 1),
    Sketcher.Constraint("Coincident", 4, 2, 0, 1),
    Sketcher.Constraint("Coincident", 5, 2, 6, 1),
    Sketcher.Constraint("Coincident", 6, 2, 7, 1),
    Sketcher.Constraint("Coincident", 7, 2, 8, 1),
    Sketcher.Constraint("Coincident", 8, 2, 9, 1),
    Sketcher.Constraint("Coincident", 9, 2, 5, 1),
    Sketcher.Constraint("Vertical", 0),
    Sketcher.Constraint("Horizontal", 1),
    Sketcher.Constraint("Vertical", 2),
    Sketcher.Constraint("Horizontal", 4),
    Sketcher.Constraint("Horizontal", 5),
    Sketcher.Constraint("Vertical", 6),
    Sketcher.Constraint("Horizontal", 7),
    Sketcher.Constraint("Vertical", 9),
    Sketcher.Constraint("Symmetric", 0, 2, 5, 2, -1),
    Sketcher.Constraint("Symmetric", 3, 2, 7, 2, -1),
    Sketcher.Constraint("Symmetric", 2, 2, 8, 2, -1),
    Sketcher.Constraint("Perpendicular", 3, 8),
    Sketcher.Constraint("DistanceX", 1, 1, 1, 2, 3.175),
    Sketcher.Constraint("DistanceX", 3, 2, 2, 2, 3.0),
    Sketcher.Constraint("DistanceY", 5, 2, 0, 2, 7.1),
    Sketcher.Constraint("DistanceY", 0, 2, 0, 1, 7.625),
    Sketcher.Constraint("DistanceX", -1, 1, 1, 2, 8.85),
])
pocket7 = body.newObject("PartDesign::Pocket", "Pocket006")
pocket7.Profile = sketch21
pocket7.Type = "ThroughAll"

# Sketch on XZ plane
sketch22 = body.newObject("Sketcher::SketchObject", "Sketch021")
sketch22.AttachmentSupport = (doc.getObject("XZ_Plane"), [""])
sketch22.MapMode = "FlatFace"
sketch22.AttachmentOffset = App.Placement(V(0, 0, -8.85), App.Rotation())
sketch22.addGeometry([
    Part.LineSegment(V(-16.2, 3.5, 0), V(-16.2, -3.5, 0)),
    Part.LineSegment(V(-16.2, -3.5, 0), V(-19.2, -3.5, 0)),
    Part.LineSegment(V(-19.2, -3.5, 0), V(-19.2, 3.5, 0)),
    Part.LineSegment(V(-19.2, 3.5, 0), V(-16.2, 3.5, 0)),
], False)
sketch22.addConstraint([
    Sketcher.Constraint("Coincident", 0, 2, 1, 1),
    Sketcher.Constraint("Coincident", 1, 2, 2, 1),
    Sketcher.Constraint("Coincident", 2, 2, 3, 1),
    Sketcher.Constraint("Coincident", 3, 2, 0, 1),
    Sketcher.Constraint("Vertical", 0),
    Sketcher.Constraint("Horizontal", 1),
    Sketcher.Constraint("Vertical", 2),
    Sketcher.Constraint("Horizontal", 3),
    Sketcher.Constraint("DistanceY", 0, 2, 0, 1, 7.1),
    Sketcher.Constraint("DistanceX", 1, 2, 1, 1, 2.925),
    Sketcher.Constraint("DistanceX", 0, 2, -1, 1, 16.25),
    Sketcher.Constraint("DistanceY", 0, 2, -1, 1, 3.55),
])
pocket8 = body.newObject("PartDesign::Pocket", "Pocket007")
pocket8.Profile = sketch22
pocket8.Length = 3.175
pocket8.Reversed = True

# Sketch on XZ plane
sketch23 = body.newObject("Sketcher::SketchObject", "Sketch022")
sketch23.AttachmentSupport = (doc.getObject("XZ_Plane"), [""])
sketch23.MapMode = "FlatFace"
sketch23.AttachmentOffset = App.Placement(V(0, 0, -2.5), App.Rotation())
sketch23.addGeometry([
    Part.LineSegment(V(-16.2, 8.1, 0), V(-19.2, 8.1, 0)),
    Part.LineSegment(V(-19.2, 8.1, 0), V(-19.2, -8.1, 0)),
    Part.LineSegment(V(-19.2, -8.1, 0), V(-16.2, -8.1, 0)),
    Part.LineSegment(V(-16.2, -8.1, 0), V(-16.2, 8.1, 0)),
], False)
sketch23.addConstraint([
    Sketcher.Constraint("Coincident", 0, 2, 1, 1),
    Sketcher.Constraint("Coincident", 1, 2, 2, 1),
    Sketcher.Constraint("Coincident", 2, 2, 3, 1),
    Sketcher.Constraint("Coincident", 3, 2, 0, 1),
    Sketcher.Constraint("Horizontal", 0),
    Sketcher.Constraint("Vertical", 1),
    Sketcher.Constraint("Horizontal", 2),
    Sketcher.Constraint("Vertical", 3),
    Sketcher.Constraint("DistanceX", 0, 2, 0, 1, 2.925),
    Sketcher.Constraint("DistanceY", 1, 2, 1, 1, 16.25),
    Sketcher.Constraint("DistanceX", 2, 2, -1, 1, 16.25),
    Sketcher.Constraint("DistanceY", -1, 1, 0, 2, 8.125),
])
pad11 = body.newObject("PartDesign::Pad", "Pad010")
pad11.Profile = sketch23
pad11.Length = 3.175

# Sketch on XZ plane
sketch24 = body.newObject("Sketcher::SketchObject", "Sketch023")
sketch24.AttachmentSupport = (doc.getObject("XZ_Plane"), [""])
sketch24.MapMode = "FlatFace"
sketch24.AttachmentOffset = App.Placement(V(0, 0, -5.675), App.Rotation())
sketch24.addGeometry([
    Part.LineSegment(V(-16, 4, 0), V(-16, -4, 0)),  # 0
    Part.LineSegment(V(-16, -4, 0), V(3, -4, 0)),  # 1
    Part.LineSegment(V(3, -4, 0), V(3, -11, 0)),  # 2
    Part.LineSegment(V(3, -11, 0), V(-19, -11, 0)),  # 3
    Part.LineSegment(V(-19, -11, 0), V(-19, 11, 0)),  # 4
    Part.LineSegment(V(-19, 11, 0), V(3, 11, 0)),  # 5
    Part.LineSegment(V(3, 11, 0), V(3, 4, 0)),  # 6
    Part.LineSegment(V(3, 4, 0), V(-16, 4, 0)),  # 7
], False)
sketch24.addConstraint([
    Sketcher.Constraint("Coincident", 0, 2, 1, 1),
    Sketcher.Constraint("Coincident", 1, 2, 2, 1),
    Sketcher.Constraint("Coincident", 2, 2, 3, 1),
    Sketcher.Constraint("Coincident", 3, 2, 4, 1),
    Sketcher.Constraint("Coincident", 4, 2, 5, 1),
    Sketcher.Constraint("Coincident", 5, 2, 6, 1),
    Sketcher.Constraint("Coincident", 6, 2, 7, 1),
    Sketcher.Constraint("Coincident", 7, 2, 0, 1),
    Sketcher.Constraint("Vertical", 0),
    Sketcher.Constraint("Horizontal", 1),
    Sketcher.Constraint("Vertical", 2),
    Sketcher.Constraint("Horizontal", 3),
    Sketcher.Constraint("Vertical", 4),
    Sketcher.Constraint("Horizontal", 5),
    Sketcher.Constraint("Vertical", 6),
    Sketcher.Constraint("Horizontal", 7),
    Sketcher.Constraint("Symmetric", 2, 2, 5, 2, -1),
    Sketcher.Constraint("Equal", 5, 4),
    Sketcher.Constraint("Equal", 2, 6),
    Sketcher.Constraint("DistanceY", 0, 2, 0, 1, 7.1),
    Sketcher.Constraint("DistanceX", 3, 2, 3, 1, 22.35),
    Sketcher.Constraint("DistanceX", 1, 1, 1, 2, 19.425),
    Sketcher.Constraint("DistanceX", 0, 2, -1, 1, 16.25),
])
pocket9 = body.newObject("PartDesign::Pocket", "Pocket008")
pocket9.Profile = sketch24
pocket9.Length = 0.5
pocket9.Reversed = True

# Sketch on XZ plane
sketch25 = body.newObject("Sketcher::SketchObject", "Sketch024")
sketch25.AttachmentSupport = (doc.getObject("XZ_Plane"), [""])
sketch25.MapMode = "FlatFace"
sketch25.AttachmentOffset = App.Placement(V(0, 0, -5.175), App.Rotation())
sketch25.addGeometry([
    Part.LineSegment(V(3, 11, 0), V(3, -11, 0)),
    Part.LineSegment(V(3, -11, 0), V(-19, -11, 0)),
    Part.LineSegment(V(-19, -11, 0), V(-19, 11, 0)),
    Part.LineSegment(V(-19, 11, 0), V(3, 11, 0)),
], False)
sketch25.addConstraint([
    Sketcher.Constraint("Coincident", 0, 2, 1, 1),
    Sketcher.Constraint("Coincident", 1, 2, 2, 1),
    Sketcher.Constraint("Coincident", 2, 2, 3, 1),
    Sketcher.Constraint("Coincident", 3, 2, 0, 1),
    Sketcher.Constraint("Vertical", 0),
    Sketcher.Constraint("Horizontal", 1),
    Sketcher.Constraint("Vertical", 2),
    Sketcher.Constraint("Horizontal", 3),
    Sketcher.Constraint("Equal", 3, 0),
    Sketcher.Constraint("DistanceX", 1, 2, 1, 1, 22.35),
    Sketcher.Constraint("DistanceX", -1, 1, 0, 2, 3.175),
    Sketcher.Constraint("DistanceY", 0, 2, -1, 1, 11.175),
])
pocket10 = body.newObject("PartDesign::Pocket", "Pocket009")
pocket10.Profile = sketch25
pocket10.Length = 1.075
pocket10.Reversed = True

# Sketch on XY plane
sketch26 = body.newObject("Sketcher::SketchObject", "Sketch025")
sketch26.AttachmentSupport = (doc.getObject("XY_Plane"), [""])
sketch26.MapMode = "FlatFace"
sketch26.AttachmentOffset = App.Placement(V(0, 0, 11.175), App.Rotation())
sketch26.addGeometry([
    Part.LineSegment(V(3, 4, 0), V(-19, 4, 0)),
    Part.LineSegment(V(-19, 4, 0), V(-19, -9, 0)),
    Part.LineSegment(V(-19, -9, 0), V(3, -9, 0)),
    Part.LineSegment(V(3, -9, 0), V(3, 4, 0)),
], False)
sketch26.addConstraint([
    Sketcher.Constraint("Coincident", 0, 2, 1, 1),
    Sketcher.Constraint("Coincident", 1, 2, 2, 1),
    Sketcher.Constraint("Coincident", 2, 2, 3, 1),
    Sketcher.Constraint("Coincident", 3, 2, 0, 1),
    Sketcher.Constraint("Horizontal", 0),
    Sketcher.Constraint("Vertical", 1),
    Sketcher.Constraint("Horizontal", 2),
    Sketcher.Constraint("Vertical", 3),
    Sketcher.Constraint("DistanceX", 0, 2, 0, 1, 22.35),
    Sketcher.Constraint("DistanceY", -1, 1, 0, 2, 4.1),
    Sketcher.Constraint("DistanceY", 1, 2, 1, 1, 13.567),
    Sketcher.Constraint("DistanceX", 0, 2, -1, 1, 19.175),
])
pocket11 = body.newObject("PartDesign::Pocket", "Pocket010")
pocket11.Profile = sketch26
pocket11.Length = 1.45

# Sketch on XY plane
sketch27 = body.newObject("Sketcher::SketchObject", "Sketch026")
sketch27.AttachmentSupport = (doc.getObject("XY_Plane"), [""])
sketch27.MapMode = "FlatFace"
sketch27.AttachmentOffset = App.Placement(V(0, 0, -11.175), App.Rotation())
sketch27.addGeometry([
    Part.LineSegment(V(3, 4, 0), V(3, -9, 0)),
    Part.LineSegment(V(3, -9, 0), V(-19, -9, 0)),
    Part.LineSegment(V(-19, -9, 0), V(-19, 4, 0)),
    Part.LineSegment(V(-19, 4, 0), V(3, 4, 0)),
], False)
sketch27.addConstraint([
    Sketcher.Constraint("Coincident", 0, 2, 1, 1),
    Sketcher.Constraint("Coincident", 1, 2, 2, 1),
    Sketcher.Constraint("Coincident", 2, 2, 3, 1),
    Sketcher.Constraint("Coincident", 3, 2, 0, 1),
    Sketcher.Constraint("Vertical", 0),
    Sketcher.Constraint("Horizontal", 1),
    Sketcher.Constraint("Vertical", 2),
    Sketcher.Constraint("Horizontal", 3),
    Sketcher.Constraint("DistanceX", 1, 2, 1, 1, 22.35),
    Sketcher.Constraint("DistanceY", -1, 1, 2, 2, 4.1),
    Sketcher.Constraint("DistanceY", 0, 2, 0, 1, 13.567),
    Sketcher.Constraint("DistanceX", -1, 1, 0, 2, 3.175),
])
pocket12 = body.newObject("PartDesign::Pocket", "Pocket011")
pocket12.Profile = sketch27
pocket12.Length = 1.45
pocket12.Reversed = True
doc.recompute()

fillet = body.newObject("PartDesign::Fillet", "Fillet")
fillet.Base = (pocket12, edges_at(pocket12, [(-8, -9.467, 9.725), (-8, -9.467, -9.725)]))
fillet.Radius = 3
doc.recompute()

fillet2 = body.newObject("PartDesign::Fillet", "Fillet001")
fillet2.Base = (fillet, edges_at(fillet, [(-17.712, -0.675, -8.125), (-17.712, -0.675, 8.125)]))
fillet2.Radius = 2

doc.recompute()
